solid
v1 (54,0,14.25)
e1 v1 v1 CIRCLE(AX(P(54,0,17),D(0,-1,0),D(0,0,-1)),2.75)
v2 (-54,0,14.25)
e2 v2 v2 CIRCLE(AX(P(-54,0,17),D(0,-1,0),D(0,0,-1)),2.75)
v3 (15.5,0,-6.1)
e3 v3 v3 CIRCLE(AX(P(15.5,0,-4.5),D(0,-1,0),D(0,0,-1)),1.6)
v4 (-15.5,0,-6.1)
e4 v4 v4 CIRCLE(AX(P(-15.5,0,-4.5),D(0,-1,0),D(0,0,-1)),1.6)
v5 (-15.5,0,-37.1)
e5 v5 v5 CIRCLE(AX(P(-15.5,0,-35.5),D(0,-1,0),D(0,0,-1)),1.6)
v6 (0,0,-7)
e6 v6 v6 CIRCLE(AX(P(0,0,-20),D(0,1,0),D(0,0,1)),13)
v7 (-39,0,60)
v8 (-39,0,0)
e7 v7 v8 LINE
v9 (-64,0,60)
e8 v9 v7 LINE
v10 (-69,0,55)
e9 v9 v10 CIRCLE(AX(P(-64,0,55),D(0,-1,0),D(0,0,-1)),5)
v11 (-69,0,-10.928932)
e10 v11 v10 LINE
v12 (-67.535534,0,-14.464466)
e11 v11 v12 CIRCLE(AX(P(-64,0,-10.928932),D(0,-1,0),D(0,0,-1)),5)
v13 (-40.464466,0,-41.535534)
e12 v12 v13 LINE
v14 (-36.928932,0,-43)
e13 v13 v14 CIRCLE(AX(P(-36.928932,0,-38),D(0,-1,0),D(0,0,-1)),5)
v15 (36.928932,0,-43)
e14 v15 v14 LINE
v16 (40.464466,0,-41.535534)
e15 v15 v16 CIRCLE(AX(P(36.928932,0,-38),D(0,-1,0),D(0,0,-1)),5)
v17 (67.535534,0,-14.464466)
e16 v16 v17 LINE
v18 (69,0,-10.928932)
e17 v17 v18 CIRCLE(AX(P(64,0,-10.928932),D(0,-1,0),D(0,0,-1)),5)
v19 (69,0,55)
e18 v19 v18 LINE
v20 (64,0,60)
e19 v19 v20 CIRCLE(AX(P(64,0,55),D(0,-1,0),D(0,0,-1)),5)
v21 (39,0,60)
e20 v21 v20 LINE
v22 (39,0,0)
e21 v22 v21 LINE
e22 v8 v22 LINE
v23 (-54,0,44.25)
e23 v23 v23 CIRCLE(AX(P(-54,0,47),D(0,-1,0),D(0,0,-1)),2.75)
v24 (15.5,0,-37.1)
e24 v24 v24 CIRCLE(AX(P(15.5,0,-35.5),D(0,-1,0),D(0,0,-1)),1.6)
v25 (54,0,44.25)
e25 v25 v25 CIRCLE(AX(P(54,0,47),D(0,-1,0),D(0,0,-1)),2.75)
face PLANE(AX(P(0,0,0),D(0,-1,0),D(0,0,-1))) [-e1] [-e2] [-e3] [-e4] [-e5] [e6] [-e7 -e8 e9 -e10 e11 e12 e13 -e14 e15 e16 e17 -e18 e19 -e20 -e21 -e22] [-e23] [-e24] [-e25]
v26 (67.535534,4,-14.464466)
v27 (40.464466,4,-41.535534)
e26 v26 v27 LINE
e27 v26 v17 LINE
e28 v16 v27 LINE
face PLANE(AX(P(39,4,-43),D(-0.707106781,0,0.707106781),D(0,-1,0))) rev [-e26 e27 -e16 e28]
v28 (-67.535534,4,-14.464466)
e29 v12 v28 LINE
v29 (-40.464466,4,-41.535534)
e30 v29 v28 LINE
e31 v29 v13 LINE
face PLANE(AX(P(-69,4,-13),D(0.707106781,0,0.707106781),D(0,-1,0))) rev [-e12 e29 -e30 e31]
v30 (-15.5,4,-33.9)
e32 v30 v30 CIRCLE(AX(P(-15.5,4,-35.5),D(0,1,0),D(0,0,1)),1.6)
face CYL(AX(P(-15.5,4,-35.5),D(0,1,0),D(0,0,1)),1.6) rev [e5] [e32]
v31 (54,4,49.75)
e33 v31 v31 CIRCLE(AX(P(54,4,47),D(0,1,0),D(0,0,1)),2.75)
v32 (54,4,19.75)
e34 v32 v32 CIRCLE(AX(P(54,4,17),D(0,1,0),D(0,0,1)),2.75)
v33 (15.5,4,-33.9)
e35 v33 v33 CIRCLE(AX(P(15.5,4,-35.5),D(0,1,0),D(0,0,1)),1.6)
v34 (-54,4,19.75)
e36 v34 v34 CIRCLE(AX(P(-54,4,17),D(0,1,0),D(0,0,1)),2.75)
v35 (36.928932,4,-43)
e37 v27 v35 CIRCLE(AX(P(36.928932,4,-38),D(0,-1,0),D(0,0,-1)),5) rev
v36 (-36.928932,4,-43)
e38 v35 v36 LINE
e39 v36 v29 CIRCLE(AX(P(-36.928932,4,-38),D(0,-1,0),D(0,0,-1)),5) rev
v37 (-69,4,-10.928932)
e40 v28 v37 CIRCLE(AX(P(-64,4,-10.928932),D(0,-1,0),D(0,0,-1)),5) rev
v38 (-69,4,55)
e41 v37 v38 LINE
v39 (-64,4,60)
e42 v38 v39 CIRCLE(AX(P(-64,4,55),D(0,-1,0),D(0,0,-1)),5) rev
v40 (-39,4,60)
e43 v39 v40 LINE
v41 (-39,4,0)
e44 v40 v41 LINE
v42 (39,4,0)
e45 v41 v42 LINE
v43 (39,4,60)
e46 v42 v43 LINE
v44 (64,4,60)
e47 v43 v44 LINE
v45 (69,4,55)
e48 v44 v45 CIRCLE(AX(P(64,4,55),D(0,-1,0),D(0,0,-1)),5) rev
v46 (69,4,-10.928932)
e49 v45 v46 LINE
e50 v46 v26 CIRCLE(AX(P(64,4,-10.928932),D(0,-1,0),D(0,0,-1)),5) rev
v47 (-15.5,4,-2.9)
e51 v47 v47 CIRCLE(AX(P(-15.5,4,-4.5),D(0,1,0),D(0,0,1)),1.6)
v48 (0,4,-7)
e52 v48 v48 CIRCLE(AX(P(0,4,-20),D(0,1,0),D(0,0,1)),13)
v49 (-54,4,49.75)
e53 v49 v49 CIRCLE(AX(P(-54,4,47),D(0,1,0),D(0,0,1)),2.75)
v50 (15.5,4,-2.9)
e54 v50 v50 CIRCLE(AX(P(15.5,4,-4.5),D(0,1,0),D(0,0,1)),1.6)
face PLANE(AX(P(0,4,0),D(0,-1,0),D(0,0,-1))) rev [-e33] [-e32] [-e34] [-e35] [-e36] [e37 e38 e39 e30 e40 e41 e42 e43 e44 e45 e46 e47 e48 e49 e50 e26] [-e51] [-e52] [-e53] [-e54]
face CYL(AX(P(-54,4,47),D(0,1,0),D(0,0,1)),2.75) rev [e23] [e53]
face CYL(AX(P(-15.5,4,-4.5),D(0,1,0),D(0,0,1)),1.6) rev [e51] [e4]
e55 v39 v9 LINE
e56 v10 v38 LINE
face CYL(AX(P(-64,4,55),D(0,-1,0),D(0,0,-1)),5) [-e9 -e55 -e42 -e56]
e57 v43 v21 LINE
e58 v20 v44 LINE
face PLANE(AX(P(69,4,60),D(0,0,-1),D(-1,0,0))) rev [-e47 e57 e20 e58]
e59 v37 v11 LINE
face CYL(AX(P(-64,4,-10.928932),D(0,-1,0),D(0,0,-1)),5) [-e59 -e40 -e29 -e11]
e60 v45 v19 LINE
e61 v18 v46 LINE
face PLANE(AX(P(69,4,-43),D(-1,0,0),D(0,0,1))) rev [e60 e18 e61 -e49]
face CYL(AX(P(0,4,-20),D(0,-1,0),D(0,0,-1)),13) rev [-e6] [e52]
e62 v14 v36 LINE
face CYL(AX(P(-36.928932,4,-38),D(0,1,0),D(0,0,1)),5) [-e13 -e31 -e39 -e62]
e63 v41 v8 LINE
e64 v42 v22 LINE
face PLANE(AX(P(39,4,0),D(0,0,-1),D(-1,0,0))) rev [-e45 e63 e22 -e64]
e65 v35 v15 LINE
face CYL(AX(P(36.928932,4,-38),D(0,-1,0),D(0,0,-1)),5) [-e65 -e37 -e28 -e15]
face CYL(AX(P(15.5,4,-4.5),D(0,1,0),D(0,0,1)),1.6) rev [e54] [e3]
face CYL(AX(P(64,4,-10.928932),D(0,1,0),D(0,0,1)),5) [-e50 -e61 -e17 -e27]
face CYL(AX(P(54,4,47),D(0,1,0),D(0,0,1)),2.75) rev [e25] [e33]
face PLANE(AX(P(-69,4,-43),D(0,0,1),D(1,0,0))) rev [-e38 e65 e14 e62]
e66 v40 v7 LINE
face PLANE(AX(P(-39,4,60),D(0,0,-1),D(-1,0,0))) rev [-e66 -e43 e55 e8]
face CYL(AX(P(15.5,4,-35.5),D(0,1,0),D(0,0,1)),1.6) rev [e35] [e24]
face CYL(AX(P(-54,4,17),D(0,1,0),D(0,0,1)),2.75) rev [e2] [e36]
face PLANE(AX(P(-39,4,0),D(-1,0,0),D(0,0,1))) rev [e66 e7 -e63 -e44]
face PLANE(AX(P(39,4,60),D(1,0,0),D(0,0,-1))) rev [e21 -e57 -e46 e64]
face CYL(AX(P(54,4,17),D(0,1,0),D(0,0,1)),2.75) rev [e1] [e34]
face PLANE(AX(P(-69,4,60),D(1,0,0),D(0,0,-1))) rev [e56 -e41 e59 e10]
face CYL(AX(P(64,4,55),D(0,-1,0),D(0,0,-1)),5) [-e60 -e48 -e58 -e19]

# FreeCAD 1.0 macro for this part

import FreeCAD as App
import Part
import Sketcher
from FreeCAD import Vector


def edges_at(feature, points):
    """Names of the edges that pass closest to the given points."""
    edges = feature.Shape.Edges
    near = lambda p: min(range(len(edges)), key=lambda i: edges[i].distToShape(Part.Vertex(*p))[0])
    return sorted({f"Edge{near(p) + 1}" for p in points})

doc = App.newDocument("Part")
body = doc.addObject("PartDesign::Body", "Body")

# Sketch on XZ plane
sketch1 = body.newObject("Sketcher::SketchObject", "Sketch")
sketch1.AttachmentSupport = (doc.getObject("XZ_Plane"), [""])
sketch1.MapMode = "FlatFace"
sketch1.addGeometry([
    Part.LineSegment(Vector(-69, -43, 0), Vector(-69, 60, 0)),  # 0
    Part.LineSegment(Vector(-69, 60, 0), Vector(-39, 60, 0)),  # 1
    Part.LineSegment(Vector(-39, 60, 0), Vector(-39, 0, 0)),  # 2
    Part.LineSegment(Vector(-39, 0, 0), Vector(39, 0, 0)),  # 3
    Part.LineSegment(Vector(39, 0, 0), Vector(39, 60, 0)),  # 4
    Part.LineSegment(Vector(39, 60, 0), Vector(69, 60, 0)),  # 5
    Part.LineSegment(Vector(69, 60, 0), Vector(69, -43, 0)),  # 6
    Part.LineSegment(Vector(69, -43, 0), Vector(-69, -43, 0)),  # 7
    Part.Circle(Vector(0, -20, 0), Vector(0, 0, 1), 13),  # 8
], False)
sketch1.addConstraint([
    Sketcher.Constraint("Coincident", 0, 2, 1, 1),
    Sketcher.Constraint("Coincident", 1, 2, 2, 1),
    Sketcher.Constraint("Coincident", 2, 2, 3, 1),
    Sketcher.Constraint("Coincident", 3, 2, 4, 1),
    Sketcher.Constraint("Coincident", 4, 2, 5, 1),
    Sketcher.Constraint("Coincident", 5, 2, 6, 1),
    Sketcher.Constraint("Coincident", 6, 2, 7, 1),
    Sketcher.Constraint("Coincident", 7, 2, 0, 1),
    Sketcher.Constraint("Vertical", 0),
    Sketcher.Constraint("Horizontal", 1),
    Sketcher.Constraint("Vertical", 2),
    Sketcher.Constraint("Horizontal", 3),
    Sketcher.Constraint("Vertical", 4),
    Sketcher.Constraint("Horizontal", 5),
    Sketcher.Constraint("Vertical", 6),
    Sketcher.Constraint("Horizontal", 7),
    Sketcher.Constraint("Symmetric", 2, 2, 3, 2, -1, 1),
    Sketcher.Constraint("Symmetric", 0, 2, 5, 2, -2),
    Sketcher.Constraint("PointOnObject", 8, 3, -2),
    Sketcher.Constraint("Diameter", 8, 26.0),
    Sketcher.Constraint("DistanceX", 1, 1, 1, 2, 30.0),
    Sketcher.Constraint("DistanceX", 3, 1, 3, 2, 78.0),
    Sketcher.Constraint("DistanceY", 0, 1, 0, 2, 103.0),
    Sketcher.Constraint("DistanceY", 2, 2, 2, 1, 60.0),
    Sketcher.Constraint("DistanceY", 8, 3, -1, 1, 20.0),
])
pad1 = body.newObject("PartDesign::Pad", "Pad")
pad1.Profile = sketch1
pad1.Length = 4
pad1.Reversed = True
doc.recompute()

chamfer = body.newObject("PartDesign::Chamfer", "Chamfer")
chamfer.Base = (pad1, edges_at(pad1, [(-69, 2, -43), (69, 2, -43)]))
chamfer.Size = 30

# Sketch on XZ plane
sketch2 = body.newObject("Sketcher::SketchObject", "Sketch001")
sketch2.AttachmentSupport = (doc.getObject("XZ_Plane"), [""])
sketch2.MapMode = "FlatFace"
sketch2.AttachmentOffset = App.Placement(Vector(0, 0, -4), App.Rotation())
sketch2.addGeometry([
    Part.Circle(Vector(-15.5, -35.5, 0), Vector(0, 0, 1), 1.6),
    Part.Circle(Vector(-15.5, -4.5, 0), Vector(0, 0, 1), 1.6),
    Part.Circle(Vector(15.5, -4.5, 0), Vector(0, 0, 1), 1.6),
    Part.Circle(Vector(15.5, -35.5, 0), Vector(0, 0, 1), 1.6),
], False)
sketch2.addConstraint([
    Sketcher.Constraint("Equal", 0, 1),
    Sketcher.Constraint("Equal", 1, 2),
    Sketcher.Constraint("Equal", 2, 3),
    Sketcher.Constraint("Symmetric", 1, 3, 2, 3, -2),
    Sketcher.Constraint("Symmetric", 0, 3, 3, 3, -2),
    Sketcher.Constraint("Vertical", 0, 3, 1, 3),
    Sketcher.Constraint("Diameter", 0, 3.2),
    Sketcher.Constraint("DistanceY", 0, 3, 1, 3, 31.0),
    Sketcher.Constraint("DistanceX", 1, 3, 2, 3, 31.0),
    Sketcher.Constraint("DistanceY", 0, 3, -1, 1, 35.5),
])
doc.recompute()
hole = body.newObject("PartDesign::Hole", "Hole")
hole.Profile = sketch2
hole.ThreadType = "None"
hole.Diameter = 3.2
hole.DepthType = "Dimension"
hole.Depth = 8
hole.DrillPoint = "Angled"
hole.DrillPointAngle = 118
hole.Reversed = True
doc.recompute()

fillet = body.newObject("PartDesign::Fillet", "Fillet")
fillet.Base = (hole, edges_at(hole, [
    (-69, 2, 60),
    (69, 2, 60),
    (-69, 2, -13),
    (39, 2, -43),
    (-39, 2, -43),
    (69, 2, -13),
]))
fillet.Radius = 5

# Sketch on XZ plane
sketch3 = body.newObject("Sketcher::SketchObject", "Sketch002")
sketch3.AttachmentSupport = (doc.getObject("XZ_Plane"), [""])
sketch3.MapMode = "FlatFace"
sketch3.AttachmentOffset = App.Placement(Vector(0, 0, -4), App.Rotation())
sketch3.addGeometry([
    Part.Circle(Vector(-54, 47, 0), Vector(0, 0, 1), 2.8),
    Part.Circle(Vector(-54, 17, 0), Vector(0, 0, 1), 2.8),
    Part.Circle(Vector(54, 17, 0), Vector(0, 0, 1), 2.8),
    Part.Circle(Vector(54, 47, 0), Vector(0, 0, 1), 2.8),
], False)
sketch3.addConstraint([
    Sketcher.Constraint("Equal", 0, 1),
    Sketcher.Constraint("Equal", 1, 2),
    Sketcher.Constraint("Equal", 2, 3),
    Sketcher.Constraint("Symmetric", 1, 3, 2, 3, -2),
    Sketcher.Constraint("Symmetric", 0, 3, 3, 3, -2),
    Sketcher.Constraint("Vertical", 0, 3, 1, 3),
    Sketcher.Constraint("Diameter", 0, 5.5),
    Sketcher.Constraint("DistanceX", 0, 3, -1, 1, 54.0),
    Sketcher.Constraint("DistanceY", -1, 1, 0, 3, 47.0),
    Sketcher.Constraint("DistanceY", -1, 1, 1, 3, 17.0),
])
doc.recompute()
hole2 = body.newObject("PartDesign::Hole", "Hole001")
hole2.Profile = sketch3
hole2.ThreadType = "None"
hole2.Diameter = 5.5
hole2.DepthType = "Dimension"
hole2.Depth = 8
hole2.DrillPoint = "Angled"
hole2.DrillPointAngle = 118
hole2.Reversed = True

doc.recompute()
